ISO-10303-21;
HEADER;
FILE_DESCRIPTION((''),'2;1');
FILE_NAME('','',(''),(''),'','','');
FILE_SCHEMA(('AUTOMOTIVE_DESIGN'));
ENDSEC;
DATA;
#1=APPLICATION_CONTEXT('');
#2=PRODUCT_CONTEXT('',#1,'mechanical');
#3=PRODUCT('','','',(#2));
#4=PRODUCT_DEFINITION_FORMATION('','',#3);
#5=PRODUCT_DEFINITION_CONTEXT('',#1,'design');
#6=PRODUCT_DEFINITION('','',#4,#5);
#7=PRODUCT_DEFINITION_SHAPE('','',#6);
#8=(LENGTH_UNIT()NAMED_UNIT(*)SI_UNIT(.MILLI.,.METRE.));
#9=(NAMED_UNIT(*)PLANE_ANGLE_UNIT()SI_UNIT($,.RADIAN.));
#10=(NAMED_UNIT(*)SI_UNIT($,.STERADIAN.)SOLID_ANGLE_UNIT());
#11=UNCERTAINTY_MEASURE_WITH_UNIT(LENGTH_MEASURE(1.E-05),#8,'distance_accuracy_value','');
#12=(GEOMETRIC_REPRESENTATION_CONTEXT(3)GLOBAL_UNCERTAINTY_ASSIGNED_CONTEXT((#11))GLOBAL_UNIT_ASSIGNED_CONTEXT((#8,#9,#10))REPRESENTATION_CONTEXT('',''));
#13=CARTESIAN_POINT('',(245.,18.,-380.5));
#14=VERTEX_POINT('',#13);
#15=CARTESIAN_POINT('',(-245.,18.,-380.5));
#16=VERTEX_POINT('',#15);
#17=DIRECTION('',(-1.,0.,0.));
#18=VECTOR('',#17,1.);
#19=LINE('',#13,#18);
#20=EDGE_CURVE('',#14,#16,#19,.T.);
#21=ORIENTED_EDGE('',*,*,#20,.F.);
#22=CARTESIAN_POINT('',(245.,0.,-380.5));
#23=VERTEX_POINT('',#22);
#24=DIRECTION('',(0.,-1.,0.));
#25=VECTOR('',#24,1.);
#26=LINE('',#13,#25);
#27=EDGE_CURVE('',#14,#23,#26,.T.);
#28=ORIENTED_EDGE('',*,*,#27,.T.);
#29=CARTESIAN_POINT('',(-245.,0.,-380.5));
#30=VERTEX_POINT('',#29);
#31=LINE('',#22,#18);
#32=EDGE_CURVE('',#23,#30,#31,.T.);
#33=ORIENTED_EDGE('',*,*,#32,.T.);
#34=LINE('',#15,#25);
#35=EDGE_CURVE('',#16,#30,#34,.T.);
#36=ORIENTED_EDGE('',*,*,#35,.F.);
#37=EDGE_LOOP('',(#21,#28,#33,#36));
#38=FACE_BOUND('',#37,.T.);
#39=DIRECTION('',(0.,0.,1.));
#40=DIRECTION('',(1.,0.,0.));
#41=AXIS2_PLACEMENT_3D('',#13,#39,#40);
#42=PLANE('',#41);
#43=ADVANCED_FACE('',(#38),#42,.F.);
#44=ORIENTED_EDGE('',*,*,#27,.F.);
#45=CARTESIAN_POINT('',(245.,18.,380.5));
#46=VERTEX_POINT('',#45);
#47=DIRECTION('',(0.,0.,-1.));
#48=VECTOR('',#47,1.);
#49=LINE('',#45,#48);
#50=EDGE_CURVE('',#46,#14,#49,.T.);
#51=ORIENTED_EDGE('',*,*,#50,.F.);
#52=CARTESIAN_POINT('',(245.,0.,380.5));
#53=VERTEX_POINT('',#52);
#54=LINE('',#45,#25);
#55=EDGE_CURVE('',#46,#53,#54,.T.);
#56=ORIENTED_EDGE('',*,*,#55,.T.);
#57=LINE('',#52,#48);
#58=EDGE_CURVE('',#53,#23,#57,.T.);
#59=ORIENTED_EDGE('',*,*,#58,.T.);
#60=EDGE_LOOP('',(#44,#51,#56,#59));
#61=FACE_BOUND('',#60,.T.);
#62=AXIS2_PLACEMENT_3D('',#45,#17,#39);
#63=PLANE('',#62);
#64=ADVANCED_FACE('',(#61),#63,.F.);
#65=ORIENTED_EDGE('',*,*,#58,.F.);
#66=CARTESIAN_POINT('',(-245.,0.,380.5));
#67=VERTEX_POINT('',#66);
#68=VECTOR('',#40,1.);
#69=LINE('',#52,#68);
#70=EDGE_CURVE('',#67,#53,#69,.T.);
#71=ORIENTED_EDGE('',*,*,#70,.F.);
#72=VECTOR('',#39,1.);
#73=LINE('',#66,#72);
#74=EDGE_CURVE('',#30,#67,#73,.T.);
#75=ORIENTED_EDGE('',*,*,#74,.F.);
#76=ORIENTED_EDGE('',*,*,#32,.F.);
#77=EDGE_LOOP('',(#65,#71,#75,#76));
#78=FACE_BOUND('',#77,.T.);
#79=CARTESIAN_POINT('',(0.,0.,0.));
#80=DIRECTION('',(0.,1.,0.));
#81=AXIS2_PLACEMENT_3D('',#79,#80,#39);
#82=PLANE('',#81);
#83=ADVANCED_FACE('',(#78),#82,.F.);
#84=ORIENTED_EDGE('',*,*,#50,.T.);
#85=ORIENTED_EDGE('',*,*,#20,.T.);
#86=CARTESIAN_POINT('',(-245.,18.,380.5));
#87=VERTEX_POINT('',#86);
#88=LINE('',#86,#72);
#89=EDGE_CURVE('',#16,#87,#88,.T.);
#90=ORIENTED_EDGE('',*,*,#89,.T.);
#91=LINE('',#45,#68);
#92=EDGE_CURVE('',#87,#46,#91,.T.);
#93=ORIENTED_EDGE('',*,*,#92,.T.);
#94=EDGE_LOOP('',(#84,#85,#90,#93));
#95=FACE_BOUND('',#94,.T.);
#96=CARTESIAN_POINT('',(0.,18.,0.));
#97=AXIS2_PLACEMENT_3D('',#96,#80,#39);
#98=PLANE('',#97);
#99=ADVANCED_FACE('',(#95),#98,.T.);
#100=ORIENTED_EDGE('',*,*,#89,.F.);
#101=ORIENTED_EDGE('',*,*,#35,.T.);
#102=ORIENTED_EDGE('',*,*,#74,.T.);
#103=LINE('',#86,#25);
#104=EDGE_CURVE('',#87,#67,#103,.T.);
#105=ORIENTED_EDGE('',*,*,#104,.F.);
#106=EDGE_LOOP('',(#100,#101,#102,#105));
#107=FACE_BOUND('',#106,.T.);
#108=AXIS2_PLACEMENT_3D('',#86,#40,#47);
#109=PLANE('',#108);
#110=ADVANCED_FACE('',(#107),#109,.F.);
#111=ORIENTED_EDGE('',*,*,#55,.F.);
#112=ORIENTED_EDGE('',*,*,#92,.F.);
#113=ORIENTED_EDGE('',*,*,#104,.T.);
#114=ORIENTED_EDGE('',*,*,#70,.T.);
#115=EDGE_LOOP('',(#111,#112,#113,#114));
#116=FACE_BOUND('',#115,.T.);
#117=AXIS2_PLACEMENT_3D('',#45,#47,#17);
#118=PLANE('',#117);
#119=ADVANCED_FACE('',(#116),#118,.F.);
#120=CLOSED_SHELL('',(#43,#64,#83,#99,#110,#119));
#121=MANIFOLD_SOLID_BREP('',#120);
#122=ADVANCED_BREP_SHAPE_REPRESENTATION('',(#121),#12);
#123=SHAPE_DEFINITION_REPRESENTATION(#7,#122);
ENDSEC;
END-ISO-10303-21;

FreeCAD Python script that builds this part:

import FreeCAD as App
import Part
import Sketcher
from FreeCAD import Vector

doc = App.newDocument("Part")
body = doc.addObject("PartDesign::Body", "Body")

# Sketch on XZ plane
sketch1 = doc.addObject("Sketcher::SketchObject", "Sketch")
body.addObject(sketch1)
sketch1.AttachmentSupport = (doc.XZ_Plane, [""])
sketch1.MapMode = "FlatFace"
sketch1.addGeometry([
    Part.LineSegment(Vector(-245, -380.5, 0), Vector(-245, 380.5, 0)),
    Part.LineSegment(Vector(-245, 380.5, 0), Vector(245, 380.5, 0)),
    Part.LineSegment(Vector(245, 380.5, 0), Vector(245, -380.5, 0)),
    Part.LineSegment(Vector(245, -380.5, 0), Vector(-245, -380.5, 0)),
], False)
sketch1.addConstraint([
    Sketcher.Constraint("Coincident", 0, 2, 1, 1),
    Sketcher.Constraint("Coincident", 1, 2, 2, 1),
    Sketcher.Constraint("Coincident", 2, 2, 3, 1),
    Sketcher.Constraint("Coincident", 3, 2, 0, 1),
    Sketcher.Constraint("Vertical", 0),
    Sketcher.Constraint("Horizontal", 1),
    Sketcher.Constraint("Vertical", 2),
    Sketcher.Constraint("Horizontal", 3),
    Sketcher.Constraint("Symmetric", 0, 2, 2, 2, -1, 1),
    Sketcher.Constraint("DistanceX", 1, 1, 1, 2, 490.0),
    Sketcher.Constraint("DistanceY", 0, 1, 0, 2, 761.0),
])
pad1 = doc.addObject("PartDesign::Pad", "Pad")
body.addObject(pad1)
pad1.Profile = sketch1
pad1.Length = 18
pad1.Reversed = True

doc.recompute()
